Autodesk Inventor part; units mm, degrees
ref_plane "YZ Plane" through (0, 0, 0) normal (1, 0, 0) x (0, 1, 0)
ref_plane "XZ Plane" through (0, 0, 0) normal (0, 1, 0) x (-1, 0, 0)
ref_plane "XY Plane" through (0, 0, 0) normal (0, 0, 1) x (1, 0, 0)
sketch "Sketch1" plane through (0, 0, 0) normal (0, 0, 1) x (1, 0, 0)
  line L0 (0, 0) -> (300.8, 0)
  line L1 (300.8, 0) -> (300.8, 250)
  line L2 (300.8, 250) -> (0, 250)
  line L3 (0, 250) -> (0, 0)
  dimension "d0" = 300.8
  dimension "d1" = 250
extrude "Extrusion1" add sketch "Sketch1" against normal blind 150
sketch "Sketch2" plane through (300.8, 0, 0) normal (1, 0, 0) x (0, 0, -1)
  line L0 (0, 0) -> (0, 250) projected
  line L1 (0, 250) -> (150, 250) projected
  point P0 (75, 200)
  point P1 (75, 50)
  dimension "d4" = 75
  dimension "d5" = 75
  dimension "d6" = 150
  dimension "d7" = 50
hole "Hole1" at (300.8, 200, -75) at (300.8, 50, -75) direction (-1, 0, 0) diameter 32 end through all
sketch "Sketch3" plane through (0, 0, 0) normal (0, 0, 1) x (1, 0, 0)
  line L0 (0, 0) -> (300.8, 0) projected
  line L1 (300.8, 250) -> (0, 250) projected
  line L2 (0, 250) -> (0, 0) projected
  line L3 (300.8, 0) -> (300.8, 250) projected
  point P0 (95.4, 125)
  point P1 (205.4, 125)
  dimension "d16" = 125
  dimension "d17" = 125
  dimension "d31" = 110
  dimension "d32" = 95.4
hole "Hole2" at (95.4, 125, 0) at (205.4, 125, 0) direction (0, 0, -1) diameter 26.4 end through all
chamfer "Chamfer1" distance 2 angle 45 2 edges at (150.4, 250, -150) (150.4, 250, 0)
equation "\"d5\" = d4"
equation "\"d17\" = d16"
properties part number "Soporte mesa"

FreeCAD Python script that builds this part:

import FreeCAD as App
import Part
import Sketcher
from FreeCAD import Vector


def edges_at(feature, points):
    """Names of the edges that pass closest to the given points."""
    edges = feature.Shape.Edges
    near = lambda p: min(range(len(edges)), key=lambda i: edges[i].distToShape(Part.Vertex(*p))[0])
    return sorted({f"Edge{near(p) + 1}" for p in points})


def add_polygon(sketch, points):
    """Adds a closed chain of lines whose ends are joined by coincident constraints."""
    first, n = sketch.GeometryCount, len(points)
    for a, b in zip(points, points[1:] + points[:1]):
        sketch.addGeometry(Part.LineSegment(App.Vector(*a, 0), App.Vector(*b, 0)), False)
    for i in range(n):
        sketch.addConstraint(Sketcher.Constraint("Coincident", first + i, 2, first + (i + 1) % n, 1))

doc = App.newDocument("Part")
body = doc.addObject("PartDesign::Body", "Body")

sketch1 = doc.addObject("Sketcher::SketchObject", "Sketch")
body.addObject(sketch1)
sketch1.AttachmentSupport = (doc.XY_Plane, [""])
sketch1.MapMode = "FlatFace"
add_polygon(sketch1, [(0, 250), (0, 0), (301, 0), (301, 250)])
sketch1.addConstraint(Sketcher.Constraint("Vertical", 0))
sketch1.addConstraint(Sketcher.Constraint("Horizontal", 1))
sketch1.addConstraint(Sketcher.Constraint("Vertical", 2))
sketch1.addConstraint(Sketcher.Constraint("Horizontal", 3))
sketch1.addConstraint(Sketcher.Constraint("Coincident", 0, 2, -1, 1))
sketch1.addConstraint(Sketcher.Constraint("DistanceY", 0, 2, 0, 1, 250.0))
sketch1.addConstraint(Sketcher.Constraint("DistanceX", 1, 1, 1, 2, 300.8))
pad1 = doc.addObject("PartDesign::Pad", "Pad")
body.addObject(pad1)
pad1.Profile = sketch1
pad1.Length = 150
pad1.Reversed = True

sketch2 = doc.addObject("Sketcher::SketchObject", "Sketch001")
body.addObject(sketch2)
sketch2.AttachmentSupport = (doc.YZ_Plane, [""])
sketch2.MapMode = "FlatFace"
sketch2.AttachmentOffset = App.Placement(Vector(0, 0, 300.8), App.Rotation())
sketch2.addGeometry(Part.Circle(Vector(200, -75, 0), Vector(0, 0, 1), 16), False)
sketch2.addGeometry(Part.Circle(Vector(50, -75, 0), Vector(0, 0, 1), 16), False)
sketch2.addConstraint(Sketcher.Constraint("Equal", 0, 1))
sketch2.addConstraint(Sketcher.Constraint("Horizontal", 0, 3, 1, 3))
sketch2.addConstraint(Sketcher.Constraint("Diameter", 0, 32.0))
sketch2.addConstraint(Sketcher.Constraint("DistanceX", -1, 1, 0, 3, 200.0))
sketch2.addConstraint(Sketcher.Constraint("DistanceY", 0, 3, -1, 1, 75.0))
sketch2.addConstraint(Sketcher.Constraint("DistanceX", -1, 1, 1, 3, 50.0))
doc.recompute()
hole = doc.addObject("PartDesign::Hole", "Hole")
body.addObject(hole)
hole.Profile = sketch2
hole.ThreadType = "None"
hole.Diameter = 32
hole.DepthType = "ThroughAll"

sketch3 = doc.addObject("Sketcher::SketchObject", "Sketch002")
body.addObject(sketch3)
sketch3.AttachmentSupport = (doc.XY_Plane, [""])
sketch3.MapMode = "FlatFace"
sketch3.addGeometry(Part.Circle(Vector(95, 125, 0), Vector(0, 0, 1), 13), False)
sketch3.addGeometry(Part.Circle(Vector(205, 125, 0), Vector(0, 0, 1), 13), False)
sketch3.addConstraint(Sketcher.Constraint("Equal", 0, 1))
sketch3.addConstraint(Sketcher.Constraint("Horizontal", 0, 3, 1, 3))
sketch3.addConstraint(Sketcher.Constraint("Diameter", 0, 26.4))
sketch3.addConstraint(Sketcher.Constraint("DistanceY", -1, 1, 0, 3, 125.0))
sketch3.addConstraint(Sketcher.Constraint("DistanceX", 0, 3, 1, 3, 110.0))
sketch3.addConstraint(Sketcher.Constraint("DistanceX", -1, 1, 0, 3, 95.4))
doc.recompute()
hole2 = doc.addObject("PartDesign::Hole", "Hole001")
body.addObject(hole2)
hole2.Profile = sketch3
hole2.ThreadType = "None"
hole2.Diameter = 26.4
hole2.DepthType = "ThroughAll"
doc.recompute()

chamfer = doc.addObject("PartDesign::Chamfer", "Chamfer")
body.addObject(chamfer)
chamfer.Base = (hole2, edges_at(hole2, [(150.4, 250, -150), (150.4, 250, 0)]))
chamfer.Size = 2

doc.recompute()
